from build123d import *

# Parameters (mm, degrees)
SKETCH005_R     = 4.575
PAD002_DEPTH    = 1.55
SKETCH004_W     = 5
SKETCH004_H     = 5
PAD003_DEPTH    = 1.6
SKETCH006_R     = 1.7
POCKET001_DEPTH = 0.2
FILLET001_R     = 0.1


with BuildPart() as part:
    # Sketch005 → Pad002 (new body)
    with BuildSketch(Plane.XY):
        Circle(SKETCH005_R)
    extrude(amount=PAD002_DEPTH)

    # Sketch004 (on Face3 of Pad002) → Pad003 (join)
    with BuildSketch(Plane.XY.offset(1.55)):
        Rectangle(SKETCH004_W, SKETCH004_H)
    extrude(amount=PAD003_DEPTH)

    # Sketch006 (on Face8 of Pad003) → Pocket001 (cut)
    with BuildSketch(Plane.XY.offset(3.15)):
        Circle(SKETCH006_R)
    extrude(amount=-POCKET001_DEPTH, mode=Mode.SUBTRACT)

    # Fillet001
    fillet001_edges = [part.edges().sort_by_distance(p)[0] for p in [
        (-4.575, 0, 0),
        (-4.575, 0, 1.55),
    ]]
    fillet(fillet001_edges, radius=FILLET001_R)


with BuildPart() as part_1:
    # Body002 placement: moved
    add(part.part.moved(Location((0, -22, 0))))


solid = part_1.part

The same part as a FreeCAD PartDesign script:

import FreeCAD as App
import Part
import Sketcher
from FreeCAD import Vector
Q = App.Units.Quantity


def edges_at(feature, points):
    """Names of the edges that pass closest to the given points."""
    edges = feature.Shape.Edges
    near = lambda p: min(range(len(edges)), key=lambda i: edges[i].distToShape(Part.Vertex(*p))[0])
    return sorted({f"Edge{near(p) + 1}" for p in points})


def add_polygon(sketch, points):
    """Adds a closed chain of lines whose ends are joined by coincident constraints."""
    first, n = sketch.GeometryCount, len(points)
    for a, b in zip(points, points[1:] + points[:1]):
        sketch.addGeometry(Part.LineSegment(App.Vector(*a, 0), App.Vector(*b, 0)), False)
    for i in range(n):
        sketch.addConstraint(Sketcher.Constraint("Coincident", first + i, 2, first + (i + 1) % n, 1))

doc = App.newDocument("Part")
body = doc.addObject("PartDesign::Body", "Body")

# Sketch on XY plane
sketch1 = body.newObject("Sketcher::SketchObject", "Sketch")
sketch1.AttachmentSupport = (doc.getObject("XY_Plane"), [""])
sketch1.MapMode = "FlatFace"
sketch1.addGeometry(Part.Circle(Vector(0, 0, 0), Vector(0, 0, 1), 4.575), False)
sketch1.addConstraint([
    Sketcher.Constraint("Coincident", 0, 3, -1, 1),
    Sketcher.Constraint("Diameter", 0, Q("9.15 mm")),
])
pad1 = body.newObject("PartDesign::Pad", "Pad")
pad1.Profile = sketch1
pad1.Length = 1.55

# Sketch on XY plane
sketch2 = body.newObject("Sketcher::SketchObject", "Sketch001")
sketch2.AttachmentSupport = (doc.getObject("XY_Plane"), [""])
sketch2.MapMode = "FlatFace"
sketch2.AttachmentOffset = App.Placement(Vector(0, 0, 1.55), App.Rotation())
add_polygon(sketch2, [(-2.5, 2.5), (-2.5, -2.5), (2.5, -2.5), (2.5, 2.5)])  # lines 0-3
sketch2.addConstraint([
    Sketcher.Constraint("Vertical", 0),
    Sketcher.Constraint("Horizontal", 1),
    Sketcher.Constraint("Vertical", 2),
    Sketcher.Constraint("Horizontal", 3),
    Sketcher.Constraint("Symmetric", 0, 2, 2, 2, -1, 1),
    Sketcher.Constraint("Equal", 3, 0),
    Sketcher.Constraint("DistanceX", 1, 1, 1, 2, Q("5 mm")),
])
pad2 = body.newObject("PartDesign::Pad", "Pad001")
pad2.Profile = sketch2
pad2.Length = 1.6

# Sketch on XY plane
sketch3 = body.newObject("Sketcher::SketchObject", "Sketch002")
sketch3.AttachmentSupport = (doc.getObject("XY_Plane"), [""])
sketch3.MapMode = "FlatFace"
sketch3.AttachmentOffset = App.Placement(Vector(0, 0, 3.15), App.Rotation())
sketch3.addGeometry(Part.Circle(Vector(0, 0, 0), Vector(0, 0, 1), 1.7), False)
sketch3.addConstraint([
    Sketcher.Constraint("Coincident", 0, 3, -1, 1),
    Sketcher.Constraint("Diameter", 0, Q("3.4 mm")),
])
pocket1 = body.newObject("PartDesign::Pocket", "Pocket")
pocket1.Profile = sketch3
pocket1.Length = 0.2
doc.recompute()

fillet = body.newObject("PartDesign::Fillet", "Fillet")
fillet.Base = (pocket1, edges_at(pocket1, [(-4.575, 0, 0), (-4.575, 0, 1.55)]))
fillet.Radius = 0.1
body2 = doc.addObject("PartDesign::Body", "Body001")
doc.recompute()

body.Placement = App.Placement(Vector(0, -22, 0), App.Rotation(Vector(0, 0, 1), 0))
boolean = body2.newObject("PartDesign::Boolean", "Boolean")
boolean.Type = "Fuse"
boolean.addObjects([body])

doc.recompute()
